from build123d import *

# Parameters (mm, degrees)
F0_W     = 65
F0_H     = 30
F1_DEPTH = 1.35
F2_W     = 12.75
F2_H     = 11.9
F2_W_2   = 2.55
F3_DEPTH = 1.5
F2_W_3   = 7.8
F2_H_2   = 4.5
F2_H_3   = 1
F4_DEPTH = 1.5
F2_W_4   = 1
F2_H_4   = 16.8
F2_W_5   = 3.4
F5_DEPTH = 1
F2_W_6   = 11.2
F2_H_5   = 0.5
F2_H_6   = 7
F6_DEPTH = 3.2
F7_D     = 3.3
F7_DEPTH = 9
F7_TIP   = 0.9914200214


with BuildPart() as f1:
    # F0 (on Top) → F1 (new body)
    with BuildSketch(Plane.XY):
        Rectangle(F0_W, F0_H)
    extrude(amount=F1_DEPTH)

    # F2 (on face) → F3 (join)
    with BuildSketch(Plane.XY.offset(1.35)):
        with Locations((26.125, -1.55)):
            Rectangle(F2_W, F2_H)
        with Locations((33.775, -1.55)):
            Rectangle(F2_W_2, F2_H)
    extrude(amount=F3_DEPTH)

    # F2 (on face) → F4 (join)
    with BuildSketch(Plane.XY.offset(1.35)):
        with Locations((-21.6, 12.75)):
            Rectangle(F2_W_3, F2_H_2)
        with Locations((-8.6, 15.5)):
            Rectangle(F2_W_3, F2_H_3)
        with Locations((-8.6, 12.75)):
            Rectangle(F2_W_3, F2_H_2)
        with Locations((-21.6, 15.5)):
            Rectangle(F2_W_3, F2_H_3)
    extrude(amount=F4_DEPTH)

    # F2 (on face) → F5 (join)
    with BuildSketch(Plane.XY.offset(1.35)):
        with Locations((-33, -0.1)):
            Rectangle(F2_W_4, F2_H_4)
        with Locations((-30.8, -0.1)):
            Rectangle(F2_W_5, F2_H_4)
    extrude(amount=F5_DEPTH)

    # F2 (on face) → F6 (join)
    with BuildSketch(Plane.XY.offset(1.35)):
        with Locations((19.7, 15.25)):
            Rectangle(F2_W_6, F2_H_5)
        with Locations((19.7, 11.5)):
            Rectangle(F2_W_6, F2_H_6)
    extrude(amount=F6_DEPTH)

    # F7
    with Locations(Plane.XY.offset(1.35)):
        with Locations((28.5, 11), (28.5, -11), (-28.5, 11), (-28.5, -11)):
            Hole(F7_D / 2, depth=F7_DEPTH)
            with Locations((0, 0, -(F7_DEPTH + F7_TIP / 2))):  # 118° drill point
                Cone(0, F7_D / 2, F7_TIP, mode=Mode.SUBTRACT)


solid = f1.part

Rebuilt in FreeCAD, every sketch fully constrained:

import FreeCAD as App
import Part
import Sketcher

V = App.Vector
Q = App.Units.Quantity


def add_polygon(sketch, points):
    """Adds a closed chain of lines whose ends are joined by coincident constraints."""
    first, n = sketch.GeometryCount, len(points)
    for a, b in zip(points, points[1:] + points[:1]):
        sketch.addGeometry(Part.LineSegment(App.Vector(*a, 0), App.Vector(*b, 0)), False)
    for i in range(n):
        sketch.addConstraint(Sketcher.Constraint("Coincident", first + i, 2, first + (i + 1) % n, 1))

doc = App.newDocument("Part")
body = doc.addObject("PartDesign::Body", "Body")

sketch1 = body.newObject("Sketcher::SketchObject", "Sketch")
sketch1.AttachmentSupport = (doc.getObject("XY_Plane"), [""])
sketch1.MapMode = "FlatFace"
add_polygon(sketch1, [(-32, 15), (-32, -15), (32, -15), (32, 15)])
sketch1.addConstraint([
    Sketcher.Constraint("Vertical", 0),
    Sketcher.Constraint("Horizontal", 1),
    Sketcher.Constraint("Vertical", 2),
    Sketcher.Constraint("Horizontal", 3),
    Sketcher.Constraint("Symmetric", 0, 2, 2, 2, -1, 1),
    Sketcher.Constraint("DistanceX", 1, 1, 1, 2, Q("65 mm")),
    Sketcher.Constraint("DistanceY", 0, 2, 0, 1, Q("30 mm")),
])
pad1 = body.newObject("PartDesign::Pad", "Pad")
pad1.Profile = sketch1
pad1.Length = 1.35

sketch2 = body.newObject("Sketcher::SketchObject", "Sketch001")
sketch2.AttachmentSupport = (doc.getObject("XY_Plane"), [""])
sketch2.MapMode = "FlatFace"
sketch2.AttachmentOffset = App.Placement(V(0, 0, 1.35), App.Rotation())
add_polygon(sketch2, [(20, 4), (20, -8), (35, -8), (35, 4)])
sketch2.addConstraint([
    Sketcher.Constraint("Vertical", 0),
    Sketcher.Constraint("Horizontal", 1),
    Sketcher.Constraint("Vertical", 2),
    Sketcher.Constraint("Horizontal", 3),
    Sketcher.Constraint("DistanceX", 1, 1, 1, 2, Q("15.3 mm")),
    Sketcher.Constraint("DistanceY", 0, 2, 0, 1, Q("11.9 mm")),
    Sketcher.Constraint("DistanceY", 0, 2, -1, 1, Q("7.5 mm")),
    Sketcher.Constraint("DistanceX", -1, 1, 0, 2, Q("19.75 mm")),
])
pad2 = body.newObject("PartDesign::Pad", "Pad001")
pad2.Profile = sketch2
pad2.Length = 1.5

sketch3 = body.newObject("Sketcher::SketchObject", "Sketch002")
sketch3.AttachmentSupport = (doc.getObject("XY_Plane"), [""])
sketch3.MapMode = "FlatFace"
sketch3.AttachmentOffset = App.Placement(V(0, 0, 1.35), App.Rotation())
add_polygon(sketch3, [(-26, 10), (-18, 10), (-18, 16), (-26, 16)])
add_polygon(sketch3, [(-12, 16), (-12, 10), (-5, 10), (-5, 16)])
sketch3.addConstraint([
    Sketcher.Constraint("Horizontal", 0),
    Sketcher.Constraint("Vertical", 1),
    Sketcher.Constraint("Horizontal", 2),
    Sketcher.Constraint("Vertical", 3),
    Sketcher.Constraint("Vertical", 4),
    Sketcher.Constraint("Horizontal", 5),
    Sketcher.Constraint("Vertical", 6),
    Sketcher.Constraint("Horizontal", 7),
    Sketcher.Constraint("Horizontal", 3, 2, 4, 2),
    Sketcher.Constraint("Horizontal", 2, 2, 6, 2),
    Sketcher.Constraint("Equal", 2, 5),
    Sketcher.Constraint("DistanceX", 0, 1, 0, 2, Q("7.8 mm")),
    Sketcher.Constraint("DistanceY", 1, 1, 1, 2, Q("5.5 mm")),
    Sketcher.Constraint("DistanceY", -1, 1, 1, 2, Q("16 mm")),
    Sketcher.Constraint("DistanceX", 3, 2, 4, 2, Q("13 mm")),
    Sketcher.Constraint("DistanceX", 0, 2, -1, 1, Q("17.7 mm")),
])
pad3 = body.newObject("PartDesign::Pad", "Pad002")
pad3.Profile = sketch3
pad3.Length = 1.5

sketch4 = body.newObject("Sketcher::SketchObject", "Sketch003")
sketch4.AttachmentSupport = (doc.getObject("XY_Plane"), [""])
sketch4.MapMode = "FlatFace"
sketch4.AttachmentOffset = App.Placement(V(0, 0, 1.35), App.Rotation())
add_polygon(sketch4, [(-33.5, 8.3), (-33.5, -8.5), (-29.1, -8.5), (-29.1, 8.3)])
sketch4.addConstraint([
    Sketcher.Constraint("Vertical", 0),
    Sketcher.Constraint("Horizontal", 1),
    Sketcher.Constraint("Vertical", 2),
    Sketcher.Constraint("Horizontal", 3),
    Sketcher.Constraint("DistanceX", 1, 1, 1, 2, Q("4.4 mm")),
    Sketcher.Constraint("DistanceY", 0, 2, 0, 1, Q("16.8 mm")),
    Sketcher.Constraint("DistanceX", 0, 2, -1, 1, Q("33.5 mm")),
    Sketcher.Constraint("DistanceY", 0, 2, -1, 1, Q("8.5 mm")),
])
pad4 = body.newObject("PartDesign::Pad", "Pad003")
pad4.Profile = sketch4
pad4.Length = 1

sketch5 = body.newObject("Sketcher::SketchObject", "Sketch004")
sketch5.AttachmentSupport = (doc.getObject("XY_Plane"), [""])
sketch5.MapMode = "FlatFace"
sketch5.AttachmentOffset = App.Placement(V(0, 0, 1.35), App.Rotation())
add_polygon(sketch5, [(14, 16), (14, 8), (25, 8), (25, 16)])
sketch5.addConstraint([
    Sketcher.Constraint("Vertical", 0),
    Sketcher.Constraint("Horizontal", 1),
    Sketcher.Constraint("Vertical", 2),
    Sketcher.Constraint("Horizontal", 3),
    Sketcher.Constraint("DistanceX", 1, 1, 1, 2, Q("11.2 mm")),
    Sketcher.Constraint("DistanceY", 0, 2, 0, 1, Q("7.5 mm")),
    Sketcher.Constraint("DistanceY", -1, 1, 0, 2, Q("8 mm")),
    Sketcher.Constraint("DistanceX", -1, 1, 0, 2, Q("14.1 mm")),
])
pad5 = body.newObject("PartDesign::Pad", "Pad004")
pad5.Profile = sketch5
pad5.Length = 3.2

sketch6 = body.newObject("Sketcher::SketchObject", "Sketch005")
sketch6.AttachmentSupport = (doc.getObject("XY_Plane"), [""])
sketch6.MapMode = "FlatFace"
sketch6.AttachmentOffset = App.Placement(V(0, 0, 1.35), App.Rotation())
sketch6.addGeometry([
    Part.Circle(V(28.5, 11, 0), V(0, 0, 1), 1.6),
    Part.Circle(V(28.5, -11, 0), V(0, 0, 1), 1.6),
    Part.Circle(V(-28.5, 11, 0), V(0, 0, 1), 1.6),
    Part.Circle(V(-28.5, -11, 0), V(0, 0, 1), 1.6),
], False)
sketch6.addConstraint([
    Sketcher.Constraint("Equal", 0, 1),
    Sketcher.Constraint("Equal", 1, 2),
    Sketcher.Constraint("Equal", 2, 3),
    Sketcher.Constraint("Symmetric", 1, 3, 2, 3, -1, 1),
    Sketcher.Constraint("Symmetric", 0, 3, 3, 3, -1, 1),
    Sketcher.Constraint("Symmetric", 0, 3, 2, 3, -2),
    Sketcher.Constraint("Diameter", 0, Q("3.3 mm")),
    Sketcher.Constraint("DistanceY", -1, 1, 0, 3, Q("11 mm")),
    Sketcher.Constraint("DistanceX", 2, 3, 0, 3, Q("57 mm")),
])
doc.recompute()
hole = body.newObject("PartDesign::Hole", "Hole")
hole.Profile = sketch6
hole.ThreadType = "None"
hole.Diameter = 3.3
hole.DepthType = "Dimension"
hole.Depth = 9
hole.DrillPoint = "Angled"
hole.DrillPointAngle = 118

doc.recompute()
